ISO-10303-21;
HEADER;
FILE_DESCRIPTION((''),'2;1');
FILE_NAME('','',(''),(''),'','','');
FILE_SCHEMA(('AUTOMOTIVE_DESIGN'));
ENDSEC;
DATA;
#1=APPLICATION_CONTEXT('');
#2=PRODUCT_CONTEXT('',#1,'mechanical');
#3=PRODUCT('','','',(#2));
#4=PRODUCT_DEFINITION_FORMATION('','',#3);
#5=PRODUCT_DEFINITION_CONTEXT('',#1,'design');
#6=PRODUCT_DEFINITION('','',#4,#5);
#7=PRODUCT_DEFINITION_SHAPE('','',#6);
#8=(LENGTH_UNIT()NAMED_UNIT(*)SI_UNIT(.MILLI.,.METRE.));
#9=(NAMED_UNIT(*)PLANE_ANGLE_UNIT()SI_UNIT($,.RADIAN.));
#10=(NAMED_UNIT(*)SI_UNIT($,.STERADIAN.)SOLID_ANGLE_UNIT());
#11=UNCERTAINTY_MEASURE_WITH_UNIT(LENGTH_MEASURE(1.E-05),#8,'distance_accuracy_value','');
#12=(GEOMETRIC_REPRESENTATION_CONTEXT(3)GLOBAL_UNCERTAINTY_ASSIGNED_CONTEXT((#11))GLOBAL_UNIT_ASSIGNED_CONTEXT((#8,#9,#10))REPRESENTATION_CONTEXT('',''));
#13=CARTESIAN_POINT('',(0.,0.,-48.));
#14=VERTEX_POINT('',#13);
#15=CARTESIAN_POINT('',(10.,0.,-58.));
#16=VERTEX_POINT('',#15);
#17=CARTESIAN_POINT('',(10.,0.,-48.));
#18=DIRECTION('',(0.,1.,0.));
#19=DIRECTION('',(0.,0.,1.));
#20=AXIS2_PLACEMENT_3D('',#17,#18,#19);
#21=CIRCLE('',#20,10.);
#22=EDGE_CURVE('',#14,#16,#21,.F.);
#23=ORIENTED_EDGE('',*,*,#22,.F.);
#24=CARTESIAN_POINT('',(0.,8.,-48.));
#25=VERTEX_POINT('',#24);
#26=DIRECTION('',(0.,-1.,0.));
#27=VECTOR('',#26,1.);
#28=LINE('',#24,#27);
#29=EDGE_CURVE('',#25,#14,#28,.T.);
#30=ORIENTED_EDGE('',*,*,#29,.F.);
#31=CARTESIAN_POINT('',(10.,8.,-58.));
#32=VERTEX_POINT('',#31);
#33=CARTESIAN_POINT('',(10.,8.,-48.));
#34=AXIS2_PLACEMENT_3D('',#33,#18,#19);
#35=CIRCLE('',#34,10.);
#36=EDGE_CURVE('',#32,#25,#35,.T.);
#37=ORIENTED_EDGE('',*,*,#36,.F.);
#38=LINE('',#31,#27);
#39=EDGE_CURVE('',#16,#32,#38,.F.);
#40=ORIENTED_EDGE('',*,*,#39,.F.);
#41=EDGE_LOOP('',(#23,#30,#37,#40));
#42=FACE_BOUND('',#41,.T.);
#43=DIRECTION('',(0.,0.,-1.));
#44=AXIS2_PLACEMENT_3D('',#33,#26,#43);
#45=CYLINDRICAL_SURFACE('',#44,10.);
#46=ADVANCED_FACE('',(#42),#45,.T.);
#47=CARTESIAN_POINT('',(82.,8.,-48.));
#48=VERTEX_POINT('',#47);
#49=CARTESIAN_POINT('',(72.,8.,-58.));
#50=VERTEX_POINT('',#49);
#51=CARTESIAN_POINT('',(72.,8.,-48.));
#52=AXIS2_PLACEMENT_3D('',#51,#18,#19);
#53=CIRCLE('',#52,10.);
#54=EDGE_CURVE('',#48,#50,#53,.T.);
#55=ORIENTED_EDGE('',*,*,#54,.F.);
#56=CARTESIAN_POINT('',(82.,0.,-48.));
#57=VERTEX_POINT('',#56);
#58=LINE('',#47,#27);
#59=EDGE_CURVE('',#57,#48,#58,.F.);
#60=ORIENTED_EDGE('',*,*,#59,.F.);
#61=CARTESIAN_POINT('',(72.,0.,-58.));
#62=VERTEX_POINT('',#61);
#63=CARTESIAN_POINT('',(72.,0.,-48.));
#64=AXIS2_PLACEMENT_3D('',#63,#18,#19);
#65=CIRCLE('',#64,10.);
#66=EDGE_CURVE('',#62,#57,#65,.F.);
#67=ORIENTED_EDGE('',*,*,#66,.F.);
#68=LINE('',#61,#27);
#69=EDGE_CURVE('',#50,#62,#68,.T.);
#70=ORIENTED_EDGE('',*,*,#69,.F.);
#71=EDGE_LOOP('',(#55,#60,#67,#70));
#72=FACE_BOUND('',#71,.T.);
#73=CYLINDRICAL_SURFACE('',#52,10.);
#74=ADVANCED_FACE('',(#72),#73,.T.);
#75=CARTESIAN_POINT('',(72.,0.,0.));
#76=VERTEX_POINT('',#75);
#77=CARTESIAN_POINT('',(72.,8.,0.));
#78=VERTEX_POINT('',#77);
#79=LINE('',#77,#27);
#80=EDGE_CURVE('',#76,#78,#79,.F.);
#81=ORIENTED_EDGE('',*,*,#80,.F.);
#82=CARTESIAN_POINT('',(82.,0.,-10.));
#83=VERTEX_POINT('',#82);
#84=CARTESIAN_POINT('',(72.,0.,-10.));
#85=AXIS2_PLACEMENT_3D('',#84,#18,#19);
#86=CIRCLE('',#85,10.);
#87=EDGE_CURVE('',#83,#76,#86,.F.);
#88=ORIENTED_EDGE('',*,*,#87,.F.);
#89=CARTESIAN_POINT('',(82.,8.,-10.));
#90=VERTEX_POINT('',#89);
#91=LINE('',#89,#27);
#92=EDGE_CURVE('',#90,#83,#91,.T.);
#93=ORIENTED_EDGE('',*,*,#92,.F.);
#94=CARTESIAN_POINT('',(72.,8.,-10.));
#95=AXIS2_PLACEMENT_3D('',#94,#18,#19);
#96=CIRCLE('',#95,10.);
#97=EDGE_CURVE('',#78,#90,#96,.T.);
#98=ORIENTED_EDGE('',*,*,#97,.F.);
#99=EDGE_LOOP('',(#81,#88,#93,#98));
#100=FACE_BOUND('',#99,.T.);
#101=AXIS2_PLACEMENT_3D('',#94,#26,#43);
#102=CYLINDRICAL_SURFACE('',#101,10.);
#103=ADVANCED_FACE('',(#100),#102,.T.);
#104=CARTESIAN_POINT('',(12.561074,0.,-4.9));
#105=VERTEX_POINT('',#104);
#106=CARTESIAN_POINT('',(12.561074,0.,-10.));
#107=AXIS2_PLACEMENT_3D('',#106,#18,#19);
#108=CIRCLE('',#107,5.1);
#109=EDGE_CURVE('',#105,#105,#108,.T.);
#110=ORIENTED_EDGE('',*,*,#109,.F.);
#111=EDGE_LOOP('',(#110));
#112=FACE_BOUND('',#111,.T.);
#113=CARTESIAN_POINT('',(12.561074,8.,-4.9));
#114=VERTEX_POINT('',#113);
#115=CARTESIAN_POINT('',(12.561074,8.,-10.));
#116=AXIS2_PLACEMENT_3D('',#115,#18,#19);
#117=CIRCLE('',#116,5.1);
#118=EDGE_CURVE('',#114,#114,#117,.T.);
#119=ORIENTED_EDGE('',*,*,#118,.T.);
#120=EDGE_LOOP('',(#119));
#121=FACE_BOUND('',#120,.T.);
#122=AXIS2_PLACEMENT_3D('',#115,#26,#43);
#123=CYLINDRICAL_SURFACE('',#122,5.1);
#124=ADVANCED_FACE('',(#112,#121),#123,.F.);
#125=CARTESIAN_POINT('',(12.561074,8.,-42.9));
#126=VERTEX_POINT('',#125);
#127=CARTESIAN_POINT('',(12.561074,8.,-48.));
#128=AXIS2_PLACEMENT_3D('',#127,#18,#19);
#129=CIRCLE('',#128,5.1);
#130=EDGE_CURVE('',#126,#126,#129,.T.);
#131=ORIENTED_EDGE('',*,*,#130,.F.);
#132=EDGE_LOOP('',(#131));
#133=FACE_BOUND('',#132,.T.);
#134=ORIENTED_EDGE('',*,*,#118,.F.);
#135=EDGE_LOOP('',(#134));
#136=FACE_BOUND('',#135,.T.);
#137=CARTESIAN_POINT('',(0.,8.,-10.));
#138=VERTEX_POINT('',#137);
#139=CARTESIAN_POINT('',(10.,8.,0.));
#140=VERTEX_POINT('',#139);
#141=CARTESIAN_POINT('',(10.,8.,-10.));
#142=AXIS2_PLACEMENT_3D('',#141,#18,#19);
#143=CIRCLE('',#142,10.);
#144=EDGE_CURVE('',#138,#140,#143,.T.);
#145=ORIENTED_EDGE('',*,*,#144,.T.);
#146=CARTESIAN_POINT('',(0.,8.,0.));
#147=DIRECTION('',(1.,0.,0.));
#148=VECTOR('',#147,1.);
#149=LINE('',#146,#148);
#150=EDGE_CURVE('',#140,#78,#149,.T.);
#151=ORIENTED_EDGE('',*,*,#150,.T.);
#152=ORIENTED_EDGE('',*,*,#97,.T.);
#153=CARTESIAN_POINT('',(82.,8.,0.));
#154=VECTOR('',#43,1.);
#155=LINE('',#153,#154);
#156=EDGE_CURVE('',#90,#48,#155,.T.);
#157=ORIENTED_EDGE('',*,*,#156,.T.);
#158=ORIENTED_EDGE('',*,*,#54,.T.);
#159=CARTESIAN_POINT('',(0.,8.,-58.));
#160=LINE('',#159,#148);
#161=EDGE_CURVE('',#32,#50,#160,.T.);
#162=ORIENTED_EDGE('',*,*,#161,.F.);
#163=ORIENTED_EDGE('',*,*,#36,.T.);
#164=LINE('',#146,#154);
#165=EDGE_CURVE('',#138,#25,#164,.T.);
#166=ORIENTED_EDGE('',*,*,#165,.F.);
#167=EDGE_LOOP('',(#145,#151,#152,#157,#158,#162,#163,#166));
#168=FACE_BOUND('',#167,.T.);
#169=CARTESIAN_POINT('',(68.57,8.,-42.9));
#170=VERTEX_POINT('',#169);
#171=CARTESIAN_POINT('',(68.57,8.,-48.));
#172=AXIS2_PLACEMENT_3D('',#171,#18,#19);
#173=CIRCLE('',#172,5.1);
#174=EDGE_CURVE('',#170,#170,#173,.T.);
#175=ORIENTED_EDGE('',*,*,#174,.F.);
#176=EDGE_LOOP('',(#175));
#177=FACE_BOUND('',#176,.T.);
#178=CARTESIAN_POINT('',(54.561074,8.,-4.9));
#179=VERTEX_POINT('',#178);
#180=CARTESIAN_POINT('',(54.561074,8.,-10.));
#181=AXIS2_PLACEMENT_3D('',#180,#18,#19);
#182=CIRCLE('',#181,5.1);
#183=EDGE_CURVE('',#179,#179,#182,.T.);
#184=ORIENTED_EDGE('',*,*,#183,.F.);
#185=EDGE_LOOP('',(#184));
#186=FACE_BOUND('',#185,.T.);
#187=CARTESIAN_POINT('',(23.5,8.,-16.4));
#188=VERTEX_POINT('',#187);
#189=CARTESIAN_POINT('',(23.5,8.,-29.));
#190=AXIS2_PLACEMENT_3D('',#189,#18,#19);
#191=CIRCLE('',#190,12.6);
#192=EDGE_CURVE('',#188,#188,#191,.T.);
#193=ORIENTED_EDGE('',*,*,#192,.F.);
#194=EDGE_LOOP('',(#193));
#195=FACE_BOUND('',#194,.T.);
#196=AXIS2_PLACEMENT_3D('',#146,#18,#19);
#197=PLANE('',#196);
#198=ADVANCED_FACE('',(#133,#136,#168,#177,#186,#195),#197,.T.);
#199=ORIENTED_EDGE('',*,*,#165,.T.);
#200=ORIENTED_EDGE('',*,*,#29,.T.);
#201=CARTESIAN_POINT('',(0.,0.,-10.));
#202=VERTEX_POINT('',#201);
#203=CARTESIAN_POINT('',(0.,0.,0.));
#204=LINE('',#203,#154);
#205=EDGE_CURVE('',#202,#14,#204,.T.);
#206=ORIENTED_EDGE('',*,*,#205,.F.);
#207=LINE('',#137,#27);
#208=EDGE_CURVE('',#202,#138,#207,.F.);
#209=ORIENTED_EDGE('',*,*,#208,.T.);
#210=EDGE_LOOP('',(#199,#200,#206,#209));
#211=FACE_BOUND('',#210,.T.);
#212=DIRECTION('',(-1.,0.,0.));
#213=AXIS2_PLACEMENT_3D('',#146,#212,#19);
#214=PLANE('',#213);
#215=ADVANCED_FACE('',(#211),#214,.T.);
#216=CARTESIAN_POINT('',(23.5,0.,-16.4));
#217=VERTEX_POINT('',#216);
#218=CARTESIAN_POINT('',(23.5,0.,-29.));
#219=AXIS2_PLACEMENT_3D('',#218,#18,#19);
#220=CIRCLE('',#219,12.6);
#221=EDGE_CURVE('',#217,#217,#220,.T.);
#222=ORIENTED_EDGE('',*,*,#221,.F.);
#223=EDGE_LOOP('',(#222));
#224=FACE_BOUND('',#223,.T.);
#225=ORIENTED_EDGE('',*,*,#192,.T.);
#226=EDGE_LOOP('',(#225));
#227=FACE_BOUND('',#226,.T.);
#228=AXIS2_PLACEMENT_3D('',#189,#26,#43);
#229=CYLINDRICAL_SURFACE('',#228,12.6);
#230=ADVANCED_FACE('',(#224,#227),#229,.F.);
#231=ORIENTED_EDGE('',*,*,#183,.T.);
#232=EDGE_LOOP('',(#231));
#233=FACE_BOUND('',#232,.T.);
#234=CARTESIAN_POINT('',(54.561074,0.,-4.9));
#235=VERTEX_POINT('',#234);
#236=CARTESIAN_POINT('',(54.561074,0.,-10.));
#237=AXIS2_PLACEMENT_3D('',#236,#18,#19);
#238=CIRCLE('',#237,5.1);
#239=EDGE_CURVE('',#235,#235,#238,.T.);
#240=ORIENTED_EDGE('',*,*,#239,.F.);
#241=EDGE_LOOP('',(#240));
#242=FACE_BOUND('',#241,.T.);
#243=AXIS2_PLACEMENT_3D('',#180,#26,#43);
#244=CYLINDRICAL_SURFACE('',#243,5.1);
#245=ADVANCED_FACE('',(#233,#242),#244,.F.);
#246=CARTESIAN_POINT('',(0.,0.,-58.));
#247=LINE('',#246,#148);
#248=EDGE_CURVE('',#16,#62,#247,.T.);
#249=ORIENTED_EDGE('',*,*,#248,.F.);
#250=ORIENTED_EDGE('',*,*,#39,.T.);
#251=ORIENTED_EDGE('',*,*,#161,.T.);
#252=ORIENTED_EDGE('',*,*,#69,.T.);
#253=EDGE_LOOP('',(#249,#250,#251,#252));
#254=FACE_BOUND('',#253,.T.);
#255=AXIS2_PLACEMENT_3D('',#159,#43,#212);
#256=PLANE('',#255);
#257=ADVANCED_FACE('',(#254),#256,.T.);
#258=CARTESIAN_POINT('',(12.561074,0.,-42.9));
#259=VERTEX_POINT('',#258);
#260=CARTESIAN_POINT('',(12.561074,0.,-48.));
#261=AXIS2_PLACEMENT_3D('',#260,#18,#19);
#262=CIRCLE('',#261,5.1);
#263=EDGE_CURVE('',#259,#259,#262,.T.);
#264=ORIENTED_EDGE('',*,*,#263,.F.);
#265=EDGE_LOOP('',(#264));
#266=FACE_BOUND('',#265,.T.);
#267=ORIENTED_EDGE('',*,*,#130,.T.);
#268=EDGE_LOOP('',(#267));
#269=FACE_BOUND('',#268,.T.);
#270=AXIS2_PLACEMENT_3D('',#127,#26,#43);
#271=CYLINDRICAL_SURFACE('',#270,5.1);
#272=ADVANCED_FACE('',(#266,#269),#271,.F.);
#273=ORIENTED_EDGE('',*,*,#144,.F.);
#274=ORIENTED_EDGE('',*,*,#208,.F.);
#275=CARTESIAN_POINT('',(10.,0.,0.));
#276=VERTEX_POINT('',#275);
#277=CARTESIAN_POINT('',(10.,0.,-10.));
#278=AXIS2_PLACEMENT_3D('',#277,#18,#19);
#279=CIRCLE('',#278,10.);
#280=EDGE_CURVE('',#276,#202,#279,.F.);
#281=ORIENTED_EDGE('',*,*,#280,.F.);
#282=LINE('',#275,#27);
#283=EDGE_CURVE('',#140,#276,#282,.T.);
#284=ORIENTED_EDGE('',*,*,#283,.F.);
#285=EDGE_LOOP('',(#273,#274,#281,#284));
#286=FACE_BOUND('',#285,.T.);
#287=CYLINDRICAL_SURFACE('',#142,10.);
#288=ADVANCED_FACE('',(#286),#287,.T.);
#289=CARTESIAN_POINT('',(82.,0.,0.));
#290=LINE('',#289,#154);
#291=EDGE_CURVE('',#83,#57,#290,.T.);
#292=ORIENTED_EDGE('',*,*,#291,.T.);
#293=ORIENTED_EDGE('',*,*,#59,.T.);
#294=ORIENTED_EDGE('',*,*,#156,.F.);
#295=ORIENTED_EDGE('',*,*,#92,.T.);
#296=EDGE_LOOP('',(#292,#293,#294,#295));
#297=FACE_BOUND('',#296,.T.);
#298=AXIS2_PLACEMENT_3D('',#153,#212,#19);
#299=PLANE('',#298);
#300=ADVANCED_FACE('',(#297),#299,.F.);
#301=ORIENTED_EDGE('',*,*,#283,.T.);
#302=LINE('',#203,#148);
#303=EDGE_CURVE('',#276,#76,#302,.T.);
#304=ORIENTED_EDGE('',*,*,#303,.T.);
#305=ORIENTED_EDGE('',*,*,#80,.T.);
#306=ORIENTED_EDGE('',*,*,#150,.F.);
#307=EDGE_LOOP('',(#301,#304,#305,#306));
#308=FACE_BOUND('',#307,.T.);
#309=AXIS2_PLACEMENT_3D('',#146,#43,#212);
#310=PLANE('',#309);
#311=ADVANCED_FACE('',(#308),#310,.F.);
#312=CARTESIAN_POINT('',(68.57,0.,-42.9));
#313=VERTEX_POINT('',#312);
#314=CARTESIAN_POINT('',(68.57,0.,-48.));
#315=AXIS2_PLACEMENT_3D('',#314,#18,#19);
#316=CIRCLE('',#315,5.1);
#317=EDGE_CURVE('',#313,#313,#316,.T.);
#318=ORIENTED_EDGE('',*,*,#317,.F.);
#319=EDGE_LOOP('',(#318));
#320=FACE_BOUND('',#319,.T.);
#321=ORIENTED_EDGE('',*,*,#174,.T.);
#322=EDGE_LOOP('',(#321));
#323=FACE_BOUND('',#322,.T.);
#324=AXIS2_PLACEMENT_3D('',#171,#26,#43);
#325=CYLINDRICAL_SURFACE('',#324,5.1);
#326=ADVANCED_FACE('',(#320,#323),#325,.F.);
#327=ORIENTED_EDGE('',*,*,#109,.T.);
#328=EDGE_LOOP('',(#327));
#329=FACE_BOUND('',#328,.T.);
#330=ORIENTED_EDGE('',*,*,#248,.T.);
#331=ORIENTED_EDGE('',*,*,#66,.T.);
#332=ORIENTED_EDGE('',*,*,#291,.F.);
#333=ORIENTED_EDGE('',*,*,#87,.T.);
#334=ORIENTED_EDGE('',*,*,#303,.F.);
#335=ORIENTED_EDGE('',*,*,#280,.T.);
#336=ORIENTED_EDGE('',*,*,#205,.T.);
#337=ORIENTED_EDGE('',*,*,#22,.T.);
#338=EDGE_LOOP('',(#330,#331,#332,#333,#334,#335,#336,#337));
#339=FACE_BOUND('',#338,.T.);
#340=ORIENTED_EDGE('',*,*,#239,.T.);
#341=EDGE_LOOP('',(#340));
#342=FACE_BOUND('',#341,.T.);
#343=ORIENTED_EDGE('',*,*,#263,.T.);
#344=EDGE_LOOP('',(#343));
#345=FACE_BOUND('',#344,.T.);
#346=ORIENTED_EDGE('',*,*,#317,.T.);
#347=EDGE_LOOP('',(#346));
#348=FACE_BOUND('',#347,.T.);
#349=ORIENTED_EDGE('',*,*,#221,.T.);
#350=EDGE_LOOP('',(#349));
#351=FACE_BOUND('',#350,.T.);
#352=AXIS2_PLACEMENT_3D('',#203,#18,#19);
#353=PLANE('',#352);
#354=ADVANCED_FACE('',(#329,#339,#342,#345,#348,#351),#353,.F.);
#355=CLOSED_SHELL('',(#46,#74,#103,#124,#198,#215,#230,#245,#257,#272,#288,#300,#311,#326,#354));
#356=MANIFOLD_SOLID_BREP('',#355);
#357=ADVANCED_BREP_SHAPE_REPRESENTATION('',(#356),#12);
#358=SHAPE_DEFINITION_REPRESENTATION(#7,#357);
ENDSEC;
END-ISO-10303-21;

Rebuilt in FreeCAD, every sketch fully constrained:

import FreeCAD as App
import Part
import Sketcher
from FreeCAD import Vector
Q = App.Units.Quantity


def edges_at(feature, points):
    """Names of the edges that pass closest to the given points."""
    edges = feature.Shape.Edges
    near = lambda p: min(range(len(edges)), key=lambda i: edges[i].distToShape(Part.Vertex(*p))[0])
    return sorted({f"Edge{near(p) + 1}" for p in points})


def add_polygon(sketch, points):
    """Adds a closed chain of lines whose ends are joined by coincident constraints."""
    first, n = sketch.GeometryCount, len(points)
    for a, b in zip(points, points[1:] + points[:1]):
        sketch.addGeometry(Part.LineSegment(App.Vector(*a, 0), App.Vector(*b, 0)), False)
    for i in range(n):
        sketch.addConstraint(Sketcher.Constraint("Coincident", first + i, 2, first + (i + 1) % n, 1))

doc = App.newDocument("Part")
body = doc.addObject("PartDesign::Body", "Body")

sketch1 = body.newObject("Sketcher::SketchObject", "Sketch")
sketch1.AttachmentSupport = (doc.getObject("XZ_Plane"), [""])
sketch1.MapMode = "FlatFace"
add_polygon(sketch1, [(0, -58), (0, 0), (82, 0), (82, -58)])
sketch1.addGeometry(Part.Circle(Vector(13, -10, 0), Vector(0, 0, 1), 5), False)
sketch1.addGeometry(Part.Circle(Vector(55, -10, 0), Vector(0, 0, 1), 5), False)
sketch1.addGeometry(Part.Circle(Vector(24, -29, 0), Vector(0, 0, 1), 13), False)
sketch1.addGeometry(Part.Circle(Vector(13, -48, 0), Vector(0, 0, 1), 5), False)
sketch1.addGeometry(Part.Circle(Vector(69, -48, 0), Vector(0, 0, 1), 5), False)
sketch1.addConstraint([
    Sketcher.Constraint("Vertical", 0),
    Sketcher.Constraint("Horizontal", 1),
    Sketcher.Constraint("Vertical", 2),
    Sketcher.Constraint("Horizontal", 3),
    Sketcher.Constraint("Coincident", 0, 2, -1, 1),
    Sketcher.Constraint("Equal", 4, 5),
    Sketcher.Constraint("Equal", 5, 7),
    Sketcher.Constraint("Equal", 7, 8),
    Sketcher.Constraint("Horizontal", 4, 3, 5, 3),
    Sketcher.Constraint("Horizontal", 7, 3, 8, 3),
    Sketcher.Constraint("Vertical", 4, 3, 7, 3),
    Sketcher.Constraint("Diameter", 4, Q("10.2 mm")),
    Sketcher.Constraint("Diameter", 6, Q("25.2 mm")),
    Sketcher.Constraint("DistanceX", 1, 1, 1, 2, Q("82 mm")),
    Sketcher.Constraint("DistanceY", 0, 1, 0, 2, Q("58 mm")),
    Sketcher.Constraint("DistanceY", 4, 3, -1, 1, Q("10 mm")),
    Sketcher.Constraint("DistanceY", 6, 3, -1, 1, Q("29 mm")),
    Sketcher.Constraint("DistanceY", 7, 3, -1, 1, Q("48 mm")),
    Sketcher.Constraint("DistanceX", 4, 3, 5, 3, Q("42 mm")),
    Sketcher.Constraint("DistanceX", -1, 1, 6, 3, Q("23.5 mm")),
    Sketcher.Constraint("DistanceX", -1, 1, 8, 3, Q("68.57 mm")),
    Sketcher.Constraint("DistanceX", -1, 1, 4, 3, Q("12.561074 mm")),
])
pad1 = body.newObject("PartDesign::Pad", "Pad")
pad1.Profile = sketch1
pad1.Length = 8
pad1.Reversed = True
doc.recompute()

fillet = body.newObject("PartDesign::Fillet", "Fillet")
fillet.Base = (pad1, edges_at(pad1, [
    (0, 4, 0),
    (0, 4, -58),
    (82, 4, -58),
    (82, 4, 0),
]))
fillet.Radius = 10

doc.recompute()
